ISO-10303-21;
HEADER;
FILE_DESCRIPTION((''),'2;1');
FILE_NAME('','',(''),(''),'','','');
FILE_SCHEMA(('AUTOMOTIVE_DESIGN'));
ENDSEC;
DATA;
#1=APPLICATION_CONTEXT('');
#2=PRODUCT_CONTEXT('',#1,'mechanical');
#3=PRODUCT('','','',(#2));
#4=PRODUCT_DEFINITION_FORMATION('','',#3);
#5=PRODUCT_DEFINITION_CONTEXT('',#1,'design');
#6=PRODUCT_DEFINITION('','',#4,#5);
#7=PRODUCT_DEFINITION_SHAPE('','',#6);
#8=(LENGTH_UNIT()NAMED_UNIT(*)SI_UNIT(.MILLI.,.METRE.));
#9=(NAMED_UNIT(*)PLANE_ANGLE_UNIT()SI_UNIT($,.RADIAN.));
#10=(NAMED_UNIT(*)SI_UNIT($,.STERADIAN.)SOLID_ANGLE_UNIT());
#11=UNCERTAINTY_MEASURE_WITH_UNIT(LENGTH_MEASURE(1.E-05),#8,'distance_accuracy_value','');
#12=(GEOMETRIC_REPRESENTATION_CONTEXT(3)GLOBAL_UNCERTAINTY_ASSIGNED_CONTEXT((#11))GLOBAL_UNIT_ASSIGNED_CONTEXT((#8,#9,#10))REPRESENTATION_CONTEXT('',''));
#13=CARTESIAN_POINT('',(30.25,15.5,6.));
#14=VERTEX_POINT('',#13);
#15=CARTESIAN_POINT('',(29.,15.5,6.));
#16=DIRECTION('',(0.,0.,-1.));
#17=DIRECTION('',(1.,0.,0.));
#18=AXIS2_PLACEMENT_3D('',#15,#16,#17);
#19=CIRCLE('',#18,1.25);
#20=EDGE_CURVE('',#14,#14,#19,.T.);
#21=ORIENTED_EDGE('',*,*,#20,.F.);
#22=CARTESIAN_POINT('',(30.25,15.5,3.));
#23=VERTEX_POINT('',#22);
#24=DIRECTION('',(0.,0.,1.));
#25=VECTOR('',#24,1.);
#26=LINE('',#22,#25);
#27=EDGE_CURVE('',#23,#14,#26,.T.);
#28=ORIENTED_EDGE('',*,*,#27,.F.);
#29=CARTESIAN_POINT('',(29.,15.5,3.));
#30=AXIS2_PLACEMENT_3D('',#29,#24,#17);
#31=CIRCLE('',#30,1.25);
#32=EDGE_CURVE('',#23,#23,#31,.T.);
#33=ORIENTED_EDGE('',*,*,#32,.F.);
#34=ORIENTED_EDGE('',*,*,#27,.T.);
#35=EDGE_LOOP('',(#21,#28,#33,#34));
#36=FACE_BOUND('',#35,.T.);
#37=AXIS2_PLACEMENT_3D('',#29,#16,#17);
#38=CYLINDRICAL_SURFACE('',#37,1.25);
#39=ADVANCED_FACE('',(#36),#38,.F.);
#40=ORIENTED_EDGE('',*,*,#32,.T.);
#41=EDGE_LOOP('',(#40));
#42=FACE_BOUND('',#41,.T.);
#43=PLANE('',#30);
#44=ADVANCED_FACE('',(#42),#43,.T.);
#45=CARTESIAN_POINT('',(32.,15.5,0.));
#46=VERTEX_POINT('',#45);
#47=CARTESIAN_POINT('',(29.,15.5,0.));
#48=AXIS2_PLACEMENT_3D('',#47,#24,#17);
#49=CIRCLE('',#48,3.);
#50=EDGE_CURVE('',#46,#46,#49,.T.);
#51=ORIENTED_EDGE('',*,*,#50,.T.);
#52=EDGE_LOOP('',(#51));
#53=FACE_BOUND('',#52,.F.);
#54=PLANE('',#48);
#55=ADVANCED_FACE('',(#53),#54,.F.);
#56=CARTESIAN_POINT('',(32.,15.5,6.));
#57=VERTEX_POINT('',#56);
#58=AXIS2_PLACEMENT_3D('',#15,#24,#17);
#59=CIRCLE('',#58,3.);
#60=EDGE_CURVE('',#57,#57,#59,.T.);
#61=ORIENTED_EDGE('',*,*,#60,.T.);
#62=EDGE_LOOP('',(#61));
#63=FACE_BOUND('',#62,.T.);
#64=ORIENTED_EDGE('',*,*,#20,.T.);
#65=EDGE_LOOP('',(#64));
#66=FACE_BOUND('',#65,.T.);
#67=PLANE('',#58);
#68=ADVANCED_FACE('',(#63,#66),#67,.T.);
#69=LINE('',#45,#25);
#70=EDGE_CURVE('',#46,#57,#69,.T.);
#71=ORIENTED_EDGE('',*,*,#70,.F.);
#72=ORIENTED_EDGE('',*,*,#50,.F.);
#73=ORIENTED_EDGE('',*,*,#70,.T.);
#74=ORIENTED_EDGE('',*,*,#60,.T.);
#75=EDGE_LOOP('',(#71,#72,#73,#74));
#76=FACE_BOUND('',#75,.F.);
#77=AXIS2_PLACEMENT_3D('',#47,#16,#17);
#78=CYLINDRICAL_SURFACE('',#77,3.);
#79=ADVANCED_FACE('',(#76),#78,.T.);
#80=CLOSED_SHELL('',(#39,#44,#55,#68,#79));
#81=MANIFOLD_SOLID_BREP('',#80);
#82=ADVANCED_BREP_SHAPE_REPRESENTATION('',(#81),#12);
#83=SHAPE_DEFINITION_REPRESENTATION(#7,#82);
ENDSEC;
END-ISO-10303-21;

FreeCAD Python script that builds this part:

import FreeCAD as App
import Part
import Sketcher

V = App.Vector
Q = App.Units.Quantity

doc = App.newDocument("Part")
body = doc.addObject("PartDesign::Body", "Body")

# Sketch on XY plane
sketch1 = doc.addObject("Sketcher::SketchObject", "Sketch")
body.addObject(sketch1)
sketch1.AttachmentSupport = (doc.XY_Plane, [""])
sketch1.MapMode = "FlatFace"
sketch1.AttachmentOffset = App.Placement(V(0, 0, 3), App.Rotation())
sketch1.addGeometry(Part.Circle(V(10, 14, 0), V(0, 0, 1), 1.25), False)
sketch1.addConstraint(Sketcher.Constraint("Diameter", 0, Q("2.5 mm")))
sketch1.addConstraint(Sketcher.Constraint("DistanceX", -1, 1, 0, 3, Q("10 mm")))
sketch1.addConstraint(Sketcher.Constraint("DistanceY", -1, 1, 0, 3, Q("14 mm")))
pad1 = doc.addObject("PartDesign::Pad", "Pad")
body.addObject(pad1)
pad1.Profile = sketch1
pad1.Length = 5
body2 = doc.addObject("PartDesign::Body", "Body001")

# Sketch on XY plane
sketch2 = doc.addObject("Sketcher::SketchObject", "Sketch001")
body2.addObject(sketch2)
sketch2.AttachmentSupport = (doc.getObject("XY_Plane001"), [""])
sketch2.MapMode = "FlatFace"
sketch2.addGeometry(Part.Circle(V(10, 14, 0), V(0, 0, 1), 3), False)
sketch2.addConstraint(Sketcher.Constraint("Diameter", 0, Q("6 mm")))
sketch2.addConstraint(Sketcher.Constraint("DistanceX", -1, 1, 0, 3, Q("10 mm")))
sketch2.addConstraint(Sketcher.Constraint("DistanceY", -1, 1, 0, 3, Q("14 mm")))
pad2 = doc.addObject("PartDesign::Pad", "Pad001")
body2.addObject(pad2)
pad2.Profile = sketch2
pad2.Length = 6
doc.recompute()

boolean = doc.addObject("PartDesign::Boolean", "Boolean")
body2.addObject(boolean)
boolean.Type = "Cut"
boolean.addObjects([body])
body3 = doc.addObject("PartDesign::Body", "Body002")
doc.recompute()

body2.Placement = App.Placement(V(19, 1.5, 0), App.Rotation(V(0, 0, 1), 0))
boolean2 = doc.addObject("PartDesign::Boolean", "Boolean001")
body3.addObject(boolean2)
boolean2.Type = "Fuse"
boolean2.addObjects([body2])

doc.recompute()
